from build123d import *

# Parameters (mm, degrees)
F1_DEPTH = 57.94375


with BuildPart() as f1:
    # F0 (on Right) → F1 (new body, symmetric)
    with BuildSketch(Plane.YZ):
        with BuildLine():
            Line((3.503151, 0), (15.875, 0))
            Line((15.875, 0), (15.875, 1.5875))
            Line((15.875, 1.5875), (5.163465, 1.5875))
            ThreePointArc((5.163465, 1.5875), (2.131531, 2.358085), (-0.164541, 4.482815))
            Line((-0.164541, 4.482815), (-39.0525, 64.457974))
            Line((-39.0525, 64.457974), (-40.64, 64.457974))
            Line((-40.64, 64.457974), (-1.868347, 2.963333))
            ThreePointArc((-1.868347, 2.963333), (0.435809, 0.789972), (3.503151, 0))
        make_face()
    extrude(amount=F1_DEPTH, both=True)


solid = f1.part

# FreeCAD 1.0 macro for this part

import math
import FreeCAD as App
import Part
import Sketcher
from FreeCAD import Vector
Q = App.Units.Quantity

doc = App.newDocument("Part")
body = doc.addObject("PartDesign::Body", "Body")

sketch1 = body.newObject("Sketcher::SketchObject", "Sketch")
sketch1.AttachmentSupport = (doc.getObject("YZ_Plane"), [""])
sketch1.MapMode = "FlatFace"
sketch1.addGeometry([
    Part.LineSegment(Vector(3.503151, 0, 0), Vector(15.875, 0, 0)),
    Part.LineSegment(Vector(15.875, 0, 0), Vector(15.875, 1.5875, 0)),
    Part.LineSegment(Vector(15.875, 1.5875, 0), Vector(5.163465, 1.5875, 0)),
    Part.ArcOfCircle(Part.Circle(Vector(5.163466, 7.937501, 0), Vector(0, 0, 1), 6.350001), math.radians(-147.040575), math.radians(-90.00001)),
    Part.LineSegment(Vector(-0.164541, 4.482815, 0), Vector(-39.0525, 64.457974, 0)),
    Part.LineSegment(Vector(-39.0525, 64.457974, 0), Vector(-40.64, 64.457974, 0)),
    Part.LineSegment(Vector(-40.64, 64.457974, 0), Vector(-1.868347, 2.963333, 0)),
    Part.ArcOfCircle(Part.Circle(Vector(3.503152, 6.350002, 0), Vector(0, 0, 1), 6.350002), math.radians(-147.769033), math.radians(-90.000008)),
], False)
sketch1.addConstraint([
    Sketcher.Constraint("Coincident", 0, 2, 1, 1),
    Sketcher.Constraint("Coincident", 1, 2, 2, 1),
    Sketcher.Constraint("Coincident", 2, 2, 3, 2),
    Sketcher.Constraint("Coincident", 3, 1, 4, 1),
    Sketcher.Constraint("Coincident", 4, 2, 5, 1),
    Sketcher.Constraint("Coincident", 5, 2, 6, 1),
    Sketcher.Constraint("Coincident", 6, 2, 7, 1),
    Sketcher.Constraint("Coincident", 7, 2, 0, 1),
    Sketcher.Constraint("Horizontal", 0),
    Sketcher.Constraint("Vertical", 1),
    Sketcher.Constraint("Horizontal", 2),
    Sketcher.Constraint("Horizontal", 5),
    Sketcher.Constraint("PointOnObject", 0, 2, -1),
    Sketcher.Constraint("Radius", 3, Q("0.2500001 in")),
    Sketcher.Constraint("Radius", 7, Q("0.2500001 in")),
    Sketcher.Constraint("DistanceX", 5, 2, -1, 1, Q("1.6 in")),
    Sketcher.Constraint("DistanceX", 5, 2, 5, 1, Q("0.0625 in")),
    Sketcher.Constraint("DistanceY", 1, 1, 1, 2, Q("0.0625 in")),
    Sketcher.Constraint("DistanceX", -1, 1, 0, 2, Q("0.625 in")),
    Sketcher.Constraint("DistanceX", 0, 1, 0, 2, 12.371849),
    Sketcher.Constraint("DistanceX", 6, 2, 7, 3, 5.371499),
    Sketcher.Constraint("Distance", 4, 71.479319),
    Sketcher.Constraint("Distance", 6, 72.69685),
    Sketcher.Constraint("DistanceX", 2, 2, 2, 1, 10.711535),
    Sketcher.Constraint("DistanceX", -1, 1, 7, 3, 3.503152),
    Sketcher.Constraint("DistanceX", 3, 1, -1, 1, 0.164541),
])
pad1 = body.newObject("PartDesign::Pad", "Pad")
pad1.Profile = sketch1
pad1.Length = Q("4.5625 in")
pad1.Midplane = True

doc.recompute()
